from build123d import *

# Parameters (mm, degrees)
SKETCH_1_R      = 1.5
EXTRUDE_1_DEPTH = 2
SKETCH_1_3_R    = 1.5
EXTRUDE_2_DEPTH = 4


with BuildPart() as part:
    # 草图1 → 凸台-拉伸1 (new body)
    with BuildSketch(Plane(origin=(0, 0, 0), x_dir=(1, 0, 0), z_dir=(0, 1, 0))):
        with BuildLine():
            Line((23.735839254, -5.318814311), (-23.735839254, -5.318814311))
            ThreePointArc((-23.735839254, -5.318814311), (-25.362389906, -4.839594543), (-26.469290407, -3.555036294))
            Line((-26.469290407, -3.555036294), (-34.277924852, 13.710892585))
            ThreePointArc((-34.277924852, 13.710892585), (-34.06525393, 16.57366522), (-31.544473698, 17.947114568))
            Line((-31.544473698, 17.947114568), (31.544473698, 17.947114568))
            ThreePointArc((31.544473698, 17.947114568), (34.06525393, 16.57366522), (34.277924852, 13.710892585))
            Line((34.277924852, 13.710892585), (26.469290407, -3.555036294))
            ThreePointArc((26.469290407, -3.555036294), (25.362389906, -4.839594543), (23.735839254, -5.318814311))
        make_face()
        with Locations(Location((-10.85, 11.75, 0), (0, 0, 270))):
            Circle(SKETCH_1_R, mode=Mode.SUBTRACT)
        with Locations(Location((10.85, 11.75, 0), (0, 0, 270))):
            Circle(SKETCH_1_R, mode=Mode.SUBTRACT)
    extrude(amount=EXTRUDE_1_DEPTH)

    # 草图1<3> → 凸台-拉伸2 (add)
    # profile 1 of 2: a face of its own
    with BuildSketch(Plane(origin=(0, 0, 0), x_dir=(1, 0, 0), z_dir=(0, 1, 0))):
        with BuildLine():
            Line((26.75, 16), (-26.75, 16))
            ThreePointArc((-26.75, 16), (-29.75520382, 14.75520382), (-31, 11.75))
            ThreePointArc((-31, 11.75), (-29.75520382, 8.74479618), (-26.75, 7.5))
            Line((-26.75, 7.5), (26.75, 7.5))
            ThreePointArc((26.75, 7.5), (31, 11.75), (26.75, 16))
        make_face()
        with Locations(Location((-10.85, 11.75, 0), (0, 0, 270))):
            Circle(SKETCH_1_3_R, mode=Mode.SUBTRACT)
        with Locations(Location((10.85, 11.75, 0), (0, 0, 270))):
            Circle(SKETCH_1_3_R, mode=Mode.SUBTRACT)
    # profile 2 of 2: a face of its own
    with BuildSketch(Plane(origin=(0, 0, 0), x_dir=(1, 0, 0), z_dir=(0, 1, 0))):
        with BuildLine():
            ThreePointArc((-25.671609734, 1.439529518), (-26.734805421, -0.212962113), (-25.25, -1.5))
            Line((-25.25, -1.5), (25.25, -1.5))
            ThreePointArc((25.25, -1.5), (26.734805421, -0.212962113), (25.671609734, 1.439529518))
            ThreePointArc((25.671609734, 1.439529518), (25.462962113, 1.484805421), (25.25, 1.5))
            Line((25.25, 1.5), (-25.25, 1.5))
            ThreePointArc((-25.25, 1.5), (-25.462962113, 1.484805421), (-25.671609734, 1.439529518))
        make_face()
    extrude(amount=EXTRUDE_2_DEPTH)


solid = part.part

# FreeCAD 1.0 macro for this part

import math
import FreeCAD as App
import Part
import Sketcher
Q = App.Units.Quantity

doc = App.newDocument("Part")
body = doc.addObject("PartDesign::Body", "Body")

sketch1 = body.newObject("Sketcher::SketchObject", "Sketch")
sketch1.AttachmentSupport = (doc.getObject("XZ_Plane"), [""])
sketch1.MapMode = "FlatFace"
sketch1.addGeometry([
    Part.LineSegment(App.Vector(-23.735839, 5.318814, 0), App.Vector(23.735839, 5.318814, 0)),
    Part.ArcOfCircle(Part.Circle(App.Vector(23.735839, 2.318814, 0), App.Vector(0, 0, 1), 3), math.radians(24.335187), math.radians(90)),
    Part.LineSegment(App.Vector(26.46929, 3.555036, 0), App.Vector(34.277925, -13.710893, 0)),
    Part.ArcOfCircle(Part.Circle(App.Vector(31.544474, -14.947115, 0), App.Vector(0, 0, 1), 3), math.radians(-90), math.radians(24.335187)),
    Part.LineSegment(App.Vector(31.544474, -17.947115, 0), App.Vector(-31.544474, -17.947115, 0)),
    Part.ArcOfCircle(Part.Circle(App.Vector(-31.544474, -14.947115, 0), App.Vector(0, 0, 1), 3), math.radians(155.664813), math.radians(270)),
    Part.LineSegment(App.Vector(-34.277925, -13.710893, 0), App.Vector(-26.46929, 3.555036, 0)),
    Part.ArcOfCircle(Part.Circle(App.Vector(-23.735839, 2.318814, 0), App.Vector(0, 0, 1), 3), math.radians(90), math.radians(155.664813)),
    Part.Circle(App.Vector(10.85, -11.75, 0), App.Vector(0, 0, 1), 1.5),
    Part.Circle(App.Vector(-10.85, -11.75, 0), App.Vector(0, 0, 1), 1.5),
], False)
sketch1.addConstraint([
    Sketcher.Constraint("Coincident", 0, 2, 1, 2),
    Sketcher.Constraint("Coincident", 1, 1, 2, 1),
    Sketcher.Constraint("Coincident", 2, 2, 3, 2),
    Sketcher.Constraint("Coincident", 3, 1, 4, 1),
    Sketcher.Constraint("Coincident", 4, 2, 5, 2),
    Sketcher.Constraint("Coincident", 5, 1, 6, 1),
    Sketcher.Constraint("Coincident", 6, 2, 7, 2),
    Sketcher.Constraint("Coincident", 7, 1, 0, 1),
    Sketcher.Constraint("Horizontal", 0),
    Sketcher.Constraint("Horizontal", 4),
    Sketcher.Constraint("Diameter", 8, Q("3 mm")),
    Sketcher.Constraint("Diameter", 9, Q("3 mm")),
    Sketcher.Constraint("Radius", 1, Q("3 mm")),
    Sketcher.Constraint("Radius", 3, Q("3 mm")),
    Sketcher.Constraint("Radius", 5, Q("3 mm")),
    Sketcher.Constraint("Radius", 7, Q("3 mm")),
    Sketcher.Constraint("DistanceX", 9, 3, 8, 3, Q("21.7 mm")),
    Sketcher.Constraint("DistanceX", -1, 1, 8, 3, Q("10.85 mm")),
    Sketcher.Constraint("DistanceY", 8, 3, -1, 1, Q("11.75 mm")),
    Sketcher.Constraint("DistanceY", 9, 3, -1, 1, Q("11.75 mm")),
    Sketcher.Constraint("DistanceX", 0, 1, 0, 2, Q("47.471679 mm")),
    Sketcher.Constraint("DistanceX", 4, 2, 4, 1, Q("63.088947 mm")),
    Sketcher.Constraint("DistanceX", -1, 1, 1, 3, Q("23.735839 mm")),
    Sketcher.Constraint("DistanceX", 7, 3, -1, 1, Q("23.735839 mm")),
    Sketcher.Constraint("DistanceX", -1, 1, 0, 2, Q("23.735839 mm")),
    Sketcher.Constraint("DistanceX", -1, 1, 1, 1, Q("26.46929 mm")),
    Sketcher.Constraint("DistanceX", 6, 2, -1, 1, Q("26.46929 mm")),
    Sketcher.Constraint("DistanceY", 3, 3, 1, 3, Q("17.265929 mm")),
    Sketcher.Constraint("DistanceX", 3, 3, 2, 2, Q("2.733451 mm")),
    Sketcher.Constraint("DistanceX", 3, 1, 2, 2, Q("2.733451 mm")),
    Sketcher.Constraint("DistanceX", 5, 1, 5, 3, Q("2.733451 mm")),
    Sketcher.Constraint("DistanceX", 5, 1, 4, 2, Q("2.733451 mm")),
    Sketcher.Constraint("Distance", 2, Q("18.949593 mm")),
    Sketcher.Constraint("DistanceY", -1, 1, 1, 3, Q("2.318814 mm")),
])
pad1 = body.newObject("PartDesign::Pad", "Pad")
pad1.Profile = sketch1
pad1.Length = 2
pad1.Reversed = True

sketch2 = body.newObject("Sketcher::SketchObject", "Sketch001")
sketch2.AttachmentSupport = (doc.getObject("XZ_Plane"), [""])
sketch2.MapMode = "FlatFace"
sketch2.addGeometry([
    Part.LineSegment(App.Vector(26.75, -16, 0), App.Vector(-26.75, -16, 0)),
    Part.ArcOfCircle(Part.Circle(App.Vector(-26.75, -11.75, 0), App.Vector(0, 0, 1), 4.25), math.radians(180), math.radians(270)),
    Part.ArcOfCircle(Part.Circle(App.Vector(-26.75, -11.75, 0), App.Vector(0, 0, 1), 4.25), math.radians(90), math.radians(180)),
    Part.LineSegment(App.Vector(-26.75, -7.5, 0), App.Vector(26.75, -7.5, 0)),
    Part.ArcOfCircle(Part.Circle(App.Vector(26.75, -11.75, 0), App.Vector(0, 0, 1), 4.25), math.radians(-90), math.radians(90)),
    Part.Circle(App.Vector(-10.85, -11.75, 0), App.Vector(0, 0, 1), 1.5),
    Part.Circle(App.Vector(10.85, -11.75, 0), App.Vector(0, 0, 1), 1.5),
    Part.ArcOfCircle(Part.Circle(App.Vector(-25.25, 0, 0), App.Vector(0, 0, 1), 1.5), math.radians(90), math.radians(253.675736)),
    Part.LineSegment(App.Vector(-25.25, 1.5, 0), App.Vector(25.25, 1.5, 0)),
    Part.ArcOfCircle(Part.Circle(App.Vector(25.25, 0, 0), App.Vector(0, 0, 1), 1.5), math.radians(-73.675736), math.radians(90)),
    Part.ArcOfCircle(Part.Circle(App.Vector(25.25, 0, 0), App.Vector(0, 0, 1), 1.5), math.radians(-90), math.radians(-73.675736)),
    Part.LineSegment(App.Vector(25.25, -1.5, 0), App.Vector(-25.25, -1.5, 0)),
    Part.ArcOfCircle(Part.Circle(App.Vector(-25.25, 0, 0), App.Vector(0, 0, 1), 1.5), math.radians(-106.324264), math.radians(-90)),
], False)
sketch2.addConstraint([
    Sketcher.Constraint("Tangent", 0, 2, 1, 2),
    Sketcher.Constraint("Tangent", 1, 1, 2, 2),
    Sketcher.Constraint("Tangent", 2, 1, 3, 1),
    Sketcher.Constraint("Tangent", 3, 2, 4, 2),
    Sketcher.Constraint("Tangent", 4, 1, 0, 1),
    Sketcher.Constraint("Tangent", 7, 1, 8, 1),
    Sketcher.Constraint("Tangent", 8, 2, 9, 2),
    Sketcher.Constraint("Tangent", 9, 1, 10, 2),
    Sketcher.Constraint("Tangent", 10, 1, 11, 1),
    Sketcher.Constraint("Tangent", 11, 2, 12, 2),
    Sketcher.Constraint("Tangent", 12, 1, 7, 2),
    Sketcher.Constraint("Horizontal", 0),
    Sketcher.Constraint("Horizontal", 3),
    Sketcher.Constraint("Horizontal", 8),
    Sketcher.Constraint("Horizontal", 11),
    Sketcher.Constraint("Equal", 1, 2),
    Sketcher.Constraint("Equal", 5, 6),
    Sketcher.Constraint("Equal", 6, 7),
    Sketcher.Constraint("Equal", 7, 9),
    Sketcher.Constraint("Equal", 9, 10),
    Sketcher.Constraint("Symmetric", 7, 3, 9, 3, -1, 1),
    Sketcher.Constraint("Symmetric", 5, 3, 6, 3, -2),
    Sketcher.Constraint("Horizontal", 4, 3, 5, 3),
    Sketcher.Constraint("Horizontal", 6, 3, 1, 1),
    Sketcher.Constraint("Horizontal", 9, 1, 12, 1),
    Sketcher.Constraint("Diameter", 5, Q("3 mm")),
    Sketcher.Constraint("Radius", 1, Q("4.25 mm")),
    Sketcher.Constraint("DistanceX", 0, 2, 0, 1, Q("53.5 mm")),
    Sketcher.Constraint("DistanceX", 8, 1, 8, 2, Q("50.5 mm")),
    Sketcher.Constraint("DistanceY", 0, 2, -1, 1, Q("16 mm")),
    Sketcher.Constraint("DistanceX", 1, 1, -1, 1, Q("31 mm")),
    Sketcher.Constraint("DistanceX", 1, 3, 5, 3, Q("15.9 mm")),
    Sketcher.Constraint("DistanceX", -1, 1, 9, 1, Q("25.67161 mm")),
])
pad2 = body.newObject("PartDesign::Pad", "Pad001")
pad2.Profile = sketch2
pad2.Length = 4
pad2.Reversed = True

doc.recompute()
